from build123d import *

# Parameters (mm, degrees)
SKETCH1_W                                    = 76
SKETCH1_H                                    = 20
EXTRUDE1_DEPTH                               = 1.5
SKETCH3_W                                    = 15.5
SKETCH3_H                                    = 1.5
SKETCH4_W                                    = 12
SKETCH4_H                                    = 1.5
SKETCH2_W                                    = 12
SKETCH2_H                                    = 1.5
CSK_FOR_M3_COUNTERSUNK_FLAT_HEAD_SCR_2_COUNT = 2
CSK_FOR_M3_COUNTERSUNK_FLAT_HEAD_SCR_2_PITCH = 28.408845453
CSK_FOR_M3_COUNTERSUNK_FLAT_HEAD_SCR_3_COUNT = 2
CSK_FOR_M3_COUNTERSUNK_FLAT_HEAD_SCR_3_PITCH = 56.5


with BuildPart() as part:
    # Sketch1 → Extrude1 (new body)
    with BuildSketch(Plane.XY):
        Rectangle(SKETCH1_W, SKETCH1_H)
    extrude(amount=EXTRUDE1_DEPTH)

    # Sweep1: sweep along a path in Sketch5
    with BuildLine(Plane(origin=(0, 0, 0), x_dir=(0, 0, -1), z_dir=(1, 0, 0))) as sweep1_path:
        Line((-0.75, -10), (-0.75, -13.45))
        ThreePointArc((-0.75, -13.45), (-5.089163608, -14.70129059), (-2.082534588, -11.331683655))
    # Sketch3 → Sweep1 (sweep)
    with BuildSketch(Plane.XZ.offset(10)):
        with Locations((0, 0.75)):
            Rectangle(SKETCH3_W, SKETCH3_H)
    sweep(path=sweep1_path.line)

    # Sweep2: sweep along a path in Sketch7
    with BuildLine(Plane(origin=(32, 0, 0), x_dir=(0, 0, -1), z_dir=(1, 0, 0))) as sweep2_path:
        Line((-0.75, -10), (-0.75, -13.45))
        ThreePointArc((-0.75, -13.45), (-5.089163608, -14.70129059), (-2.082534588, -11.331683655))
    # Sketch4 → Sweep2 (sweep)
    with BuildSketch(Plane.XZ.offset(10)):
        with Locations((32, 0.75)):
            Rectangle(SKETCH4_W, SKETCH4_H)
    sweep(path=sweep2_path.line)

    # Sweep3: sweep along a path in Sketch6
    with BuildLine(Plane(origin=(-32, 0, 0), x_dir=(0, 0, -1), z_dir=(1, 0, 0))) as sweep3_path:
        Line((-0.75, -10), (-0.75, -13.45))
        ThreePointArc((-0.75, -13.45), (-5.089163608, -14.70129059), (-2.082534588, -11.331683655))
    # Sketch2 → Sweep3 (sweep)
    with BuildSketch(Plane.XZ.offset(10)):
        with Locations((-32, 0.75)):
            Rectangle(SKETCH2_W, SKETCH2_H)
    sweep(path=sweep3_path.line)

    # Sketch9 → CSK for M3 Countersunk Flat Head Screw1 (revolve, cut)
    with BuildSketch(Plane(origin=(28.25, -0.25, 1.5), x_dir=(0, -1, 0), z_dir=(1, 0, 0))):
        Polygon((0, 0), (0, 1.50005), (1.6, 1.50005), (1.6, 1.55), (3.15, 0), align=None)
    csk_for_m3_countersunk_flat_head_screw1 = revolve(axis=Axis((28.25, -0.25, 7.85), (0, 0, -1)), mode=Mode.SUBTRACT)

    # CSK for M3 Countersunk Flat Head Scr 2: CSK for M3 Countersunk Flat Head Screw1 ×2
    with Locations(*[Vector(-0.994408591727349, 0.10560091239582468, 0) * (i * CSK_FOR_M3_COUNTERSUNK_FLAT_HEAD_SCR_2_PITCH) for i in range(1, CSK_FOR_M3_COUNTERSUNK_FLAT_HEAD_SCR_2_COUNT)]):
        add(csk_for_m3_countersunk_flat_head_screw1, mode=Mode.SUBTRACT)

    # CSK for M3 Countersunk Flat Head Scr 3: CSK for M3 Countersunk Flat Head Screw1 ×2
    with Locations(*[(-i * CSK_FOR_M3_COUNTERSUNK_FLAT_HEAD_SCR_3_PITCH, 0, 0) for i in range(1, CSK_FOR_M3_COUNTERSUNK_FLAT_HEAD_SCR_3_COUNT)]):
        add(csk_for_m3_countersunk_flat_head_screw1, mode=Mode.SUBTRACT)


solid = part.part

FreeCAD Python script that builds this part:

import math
import FreeCAD as App
import Part
import Sketcher

V = App.Vector
Q = App.Units.Quantity

doc = App.newDocument("Part")
body = doc.addObject("PartDesign::Body", "Body")

sketch1 = body.newObject("Sketcher::SketchObject", "Sketch")
sketch1.AttachmentSupport = (doc.getObject("XY_Plane"), [""])
sketch1.MapMode = "FlatFace"
sketch1.addGeometry([
    Part.LineSegment(V(-38, 10, 0), V(-38, -10, 0)),
    Part.LineSegment(V(-38, -10, 0), V(38, -10, 0)),
    Part.LineSegment(V(38, -10, 0), V(38, 10, 0)),
    Part.LineSegment(V(38, 10, 0), V(-38, 10, 0)),
], False)
sketch1.addConstraint([
    Sketcher.Constraint("Coincident", 0, 2, 1, 1),
    Sketcher.Constraint("Coincident", 1, 2, 2, 1),
    Sketcher.Constraint("Coincident", 2, 2, 3, 1),
    Sketcher.Constraint("Coincident", 3, 2, 0, 1),
    Sketcher.Constraint("Vertical", 0),
    Sketcher.Constraint("Horizontal", 1),
    Sketcher.Constraint("Vertical", 2),
    Sketcher.Constraint("Horizontal", 3),
    Sketcher.Constraint("Symmetric", 0, 2, 2, 2, -1, 1),
    Sketcher.Constraint("DistanceX", 1, 1, 1, 2, 76.0),
    Sketcher.Constraint("DistanceY", 0, 2, 0, 1, 20.0),
])
pad1 = body.newObject("PartDesign::Pad", "Pad")
pad1.Profile = sketch1
pad1.Length = 1.5

sketch2 = body.newObject("Sketcher::SketchObject", "Sketch001")
sketch2.AttachmentSupport = (doc.getObject("XZ_Plane"), [""])
sketch2.MapMode = "FlatFace"
sketch2.AttachmentOffset = App.Placement(V(0, 0, 10), App.Rotation())
sketch2.addGeometry([
    Part.LineSegment(V(-7.75, 1.5, 0), V(-7.75, 0, 0)),
    Part.LineSegment(V(-7.75, 0, 0), V(7.75, 0, 0)),
    Part.LineSegment(V(7.75, 0, 0), V(7.75, 1.5, 0)),
    Part.LineSegment(V(7.75, 1.5, 0), V(-7.75, 1.5, 0)),
], False)
sketch2.addConstraint([
    Sketcher.Constraint("Coincident", 0, 2, 1, 1),
    Sketcher.Constraint("Coincident", 1, 2, 2, 1),
    Sketcher.Constraint("Coincident", 2, 2, 3, 1),
    Sketcher.Constraint("Coincident", 3, 2, 0, 1),
    Sketcher.Constraint("Vertical", 0),
    Sketcher.Constraint("Horizontal", 1),
    Sketcher.Constraint("Vertical", 2),
    Sketcher.Constraint("Horizontal", 3),
    Sketcher.Constraint("Symmetric", 0, 2, 1, 2, -1, 1),
    Sketcher.Constraint("DistanceX", 1, 1, 1, 2, 15.5),
    Sketcher.Constraint("DistanceY", 0, 2, 0, 1, 1.5),
])

sketch3 = body.newObject("Sketcher::SketchObject", "Sketch002")
sketch3.AttachmentSupport = (doc.getObject("YZ_Plane"), [""])
sketch3.MapMode = "FlatFace"
sketch3.addGeometry([
    Part.LineSegment(V(-10, 0.75, 0), V(-13.45, 0.75, 0)),
    Part.ArcOfCircle(Part.Circle(V(-13.45, 3.1, 0), V(0, 0, 1), 2.35), math.radians(-25.655811), math.radians(270)),
], False)
sketch3.addConstraint([
    Sketcher.Constraint("Tangent", 0, 2, 1, 2),
    Sketcher.Constraint("Horizontal", 0),
    Sketcher.Constraint("Radius", 1, 2.35),
    Sketcher.Constraint("DistanceX", 0, 1, -1, 1, 10.0),
    Sketcher.Constraint("DistanceX", 0, 2, 0, 1, 3.45),
    Sketcher.Constraint("DistanceY", -1, 1, 1, 3, 3.1),
    Sketcher.Constraint("DistanceX", 1, 1, -1, 1, 11.331684),
])
doc.recompute()

additivepipe = body.newObject("PartDesign::AdditivePipe", "AdditivePipe")
additivepipe.Profile = sketch2
additivepipe.Spine = (sketch3, ["Edge1", "Edge2"])

sketch4 = body.newObject("Sketcher::SketchObject", "Sketch003")
sketch4.AttachmentSupport = (doc.getObject("XZ_Plane"), [""])
sketch4.MapMode = "FlatFace"
sketch4.AttachmentOffset = App.Placement(V(0, 0, 10), App.Rotation())
sketch4.addGeometry([
    Part.LineSegment(V(26, 1.5, 0), V(26, 0, 0)),
    Part.LineSegment(V(26, 0, 0), V(38, 0, 0)),
    Part.LineSegment(V(38, 0, 0), V(38, 1.5, 0)),
    Part.LineSegment(V(38, 1.5, 0), V(26, 1.5, 0)),
], False)
sketch4.addConstraint([
    Sketcher.Constraint("Coincident", 0, 2, 1, 1),
    Sketcher.Constraint("Coincident", 1, 2, 2, 1),
    Sketcher.Constraint("Coincident", 2, 2, 3, 1),
    Sketcher.Constraint("Coincident", 3, 2, 0, 1),
    Sketcher.Constraint("Vertical", 0),
    Sketcher.Constraint("Horizontal", 1),
    Sketcher.Constraint("Vertical", 2),
    Sketcher.Constraint("Horizontal", 3),
    Sketcher.Constraint("PointOnObject", 0, 2, -1),
    Sketcher.Constraint("DistanceX", 1, 1, 1, 2, 12.0),
    Sketcher.Constraint("DistanceY", 0, 2, 0, 1, 1.5),
    Sketcher.Constraint("DistanceX", -1, 1, 0, 2, 26.0),
])

sketch5 = body.newObject("Sketcher::SketchObject", "Sketch004")
sketch5.AttachmentSupport = (doc.getObject("YZ_Plane"), [""])
sketch5.MapMode = "FlatFace"
sketch5.AttachmentOffset = App.Placement(V(0, 0, 32), App.Rotation())
sketch5.addGeometry([
    Part.LineSegment(V(-10, 0.75, 0), V(-13.45, 0.75, 0)),
    Part.ArcOfCircle(Part.Circle(V(-13.45, 3.1, 0), V(0, 0, 1), 2.35), math.radians(-25.655811), math.radians(270)),
], False)
sketch5.addConstraint([
    Sketcher.Constraint("Tangent", 0, 2, 1, 2),
    Sketcher.Constraint("Horizontal", 0),
    Sketcher.Constraint("Radius", 1, 2.35),
    Sketcher.Constraint("DistanceX", 0, 1, -1, 1, 10.0),
    Sketcher.Constraint("DistanceX", 0, 2, 0, 1, 3.45),
    Sketcher.Constraint("DistanceY", -1, 1, 1, 3, 3.1),
    Sketcher.Constraint("DistanceX", 1, 1, -1, 1, 11.331684),
])
doc.recompute()

additivepipe2 = body.newObject("PartDesign::AdditivePipe", "AdditivePipe001")
additivepipe2.Profile = sketch4
additivepipe2.Spine = (sketch5, ["Edge1", "Edge2"])

sketch6 = body.newObject("Sketcher::SketchObject", "Sketch005")
sketch6.AttachmentSupport = (doc.getObject("XZ_Plane"), [""])
sketch6.MapMode = "FlatFace"
sketch6.AttachmentOffset = App.Placement(V(0, 0, 10), App.Rotation())
sketch6.addGeometry([
    Part.LineSegment(V(-38, 1.5, 0), V(-38, 0, 0)),
    Part.LineSegment(V(-38, 0, 0), V(-26, 0, 0)),
    Part.LineSegment(V(-26, 0, 0), V(-26, 1.5, 0)),
    Part.LineSegment(V(-26, 1.5, 0), V(-38, 1.5, 0)),
], False)
sketch6.addConstraint([
    Sketcher.Constraint("Coincident", 0, 2, 1, 1),
    Sketcher.Constraint("Coincident", 1, 2, 2, 1),
    Sketcher.Constraint("Coincident", 2, 2, 3, 1),
    Sketcher.Constraint("Coincident", 3, 2, 0, 1),
    Sketcher.Constraint("Vertical", 0),
    Sketcher.Constraint("Horizontal", 1),
    Sketcher.Constraint("Vertical", 2),
    Sketcher.Constraint("Horizontal", 3),
    Sketcher.Constraint("PointOnObject", 0, 2, -1),
    Sketcher.Constraint("DistanceX", 1, 1, 1, 2, 12.0),
    Sketcher.Constraint("DistanceY", 0, 2, 0, 1, 1.5),
    Sketcher.Constraint("DistanceX", 0, 2, -1, 1, 38.0),
])

sketch7 = body.newObject("Sketcher::SketchObject", "Sketch006")
sketch7.AttachmentSupport = (doc.getObject("YZ_Plane"), [""])
sketch7.MapMode = "FlatFace"
sketch7.AttachmentOffset = App.Placement(V(0, 0, -32), App.Rotation())
sketch7.addGeometry([
    Part.LineSegment(V(-10, 0.75, 0), V(-13.45, 0.75, 0)),
    Part.ArcOfCircle(Part.Circle(V(-13.45, 3.1, 0), V(0, 0, 1), 2.35), math.radians(-25.655811), math.radians(270)),
], False)
sketch7.addConstraint([
    Sketcher.Constraint("Tangent", 0, 2, 1, 2),
    Sketcher.Constraint("Horizontal", 0),
    Sketcher.Constraint("Radius", 1, 2.35),
    Sketcher.Constraint("DistanceX", 0, 1, -1, 1, 10.0),
    Sketcher.Constraint("DistanceX", 0, 2, 0, 1, 3.45),
    Sketcher.Constraint("DistanceY", -1, 1, 1, 3, 3.1),
    Sketcher.Constraint("DistanceX", 1, 1, -1, 1, 11.331684),
])
doc.recompute()

additivepipe3 = body.newObject("PartDesign::AdditivePipe", "AdditivePipe002")
additivepipe3.Profile = sketch6
additivepipe3.Spine = (sketch7, ["Edge1", "Edge2"])

sketch8 = body.newObject("Sketcher::SketchObject", "Sketch007")
sketch8.AttachmentSupport = (doc.getObject("YZ_Plane"), [""])
sketch8.MapMode = "FlatFace"
sketch8.AttachmentOffset = App.Placement(V(0, 0, 28.25), App.Rotation())
sketch8.addGeometry([
    Part.LineSegment(V(-0.25, -0.00005, 0), V(-0.25, 1.5, 0)),
    Part.LineSegment(V(-0.25, 1.5, 0), V(-3.4, 1.5, 0)),
    Part.LineSegment(V(-3.4, 1.5, 0), V(-1.85, -0.05, 0)),
    Part.LineSegment(V(-1.85, -0.05, 0), V(-1.85, -0.00005, 0)),
    Part.LineSegment(V(-1.85, -0.00005, 0), V(-0.25, -0.00005, 0)),
], False)
sketch8.addGeometry(Part.LineSegment(V(-0.25, 1.5, 0), V(-0.25, -0.05, 0)), True)
sketch8.addConstraint([
    Sketcher.Constraint("Coincident", 0, 2, 1, 1),
    Sketcher.Constraint("Coincident", 1, 2, 2, 1),
    Sketcher.Constraint("Coincident", 2, 2, 3, 1),
    Sketcher.Constraint("Coincident", 3, 2, 4, 1),
    Sketcher.Constraint("Coincident", 4, 2, 0, 1),
    Sketcher.Constraint("Vertical", 0),
    Sketcher.Constraint("Horizontal", 1),
    Sketcher.Constraint("Vertical", 3),
    Sketcher.Constraint("Horizontal", 4),
    Sketcher.Constraint("Vertical", 5),
    Sketcher.Constraint("Coincident", 5, 1, 0, 2),
    Sketcher.Constraint("Horizontal", 2, 2, 5, 2),
    Sketcher.Constraint("Angle", 2, Q("-45 deg")),
    Sketcher.Constraint("DistanceX", 4, 1, 4, 2, 1.6),
    Sketcher.Constraint("DistanceX", 1, 2, 1, 1, 3.15),
    Sketcher.Constraint("DistanceY", -1, 1, 0, 2, 1.5),
    Sketcher.Constraint("DistanceX", 1, 2, -1, 1, 3.4),
    Sketcher.Constraint("DistanceY", 0, 1, 0, 2, 1.50005),
])
groove = body.newObject("PartDesign::Groove", "Groove")
groove.Profile = sketch8
groove.ReferenceAxis = (sketch8, ["Axis0"])
groove.Angle = 360
doc.recompute()

datumline = body.newObject("PartDesign::Line", "DatumLine")
datumline.Placement = App.Placement(V(0, 0, 0), App.Rotation(V(0, 0, 1), V(-0.994408592, 0.105600912, 0)))
linearpattern = body.newObject("PartDesign::LinearPattern", "LinearPattern")
linearpattern.Originals = [groove]
linearpattern.Direction = (datumline, [""])
linearpattern.Mode = "offset"
linearpattern.Offset = 28.408845
linearpattern.Occurrences = 2
body.Tip = linearpattern
doc.recompute()

linearpattern2 = body.newObject("PartDesign::LinearPattern", "LinearPattern001")
linearpattern2.Originals = [groove]
linearpattern2.Direction = (doc.getObject("X_Axis"), [""])
linearpattern2.Mode = "offset"
linearpattern2.Offset = 56.5
linearpattern2.Occurrences = 2
linearpattern2.Reversed = True
body.Tip = linearpattern2

doc.recompute()
